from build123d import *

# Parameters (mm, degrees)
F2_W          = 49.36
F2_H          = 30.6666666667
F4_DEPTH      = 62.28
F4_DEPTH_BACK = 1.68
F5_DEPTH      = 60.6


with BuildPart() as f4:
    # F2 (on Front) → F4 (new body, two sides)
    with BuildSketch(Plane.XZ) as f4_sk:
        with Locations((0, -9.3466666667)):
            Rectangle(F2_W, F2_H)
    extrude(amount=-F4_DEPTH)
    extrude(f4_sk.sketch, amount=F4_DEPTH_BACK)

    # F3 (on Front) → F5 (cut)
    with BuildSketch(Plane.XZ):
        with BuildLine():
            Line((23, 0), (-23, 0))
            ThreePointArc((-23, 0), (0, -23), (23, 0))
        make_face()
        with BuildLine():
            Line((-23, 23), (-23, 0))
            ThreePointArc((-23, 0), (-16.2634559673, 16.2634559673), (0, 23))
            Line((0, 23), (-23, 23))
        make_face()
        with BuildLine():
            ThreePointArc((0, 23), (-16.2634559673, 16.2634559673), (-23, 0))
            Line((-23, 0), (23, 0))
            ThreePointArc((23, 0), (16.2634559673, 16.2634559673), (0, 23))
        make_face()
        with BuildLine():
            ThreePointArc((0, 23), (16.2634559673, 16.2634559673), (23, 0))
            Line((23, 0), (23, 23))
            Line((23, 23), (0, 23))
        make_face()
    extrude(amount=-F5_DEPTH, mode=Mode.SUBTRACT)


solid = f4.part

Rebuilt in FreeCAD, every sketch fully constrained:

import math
import FreeCAD as App
import Part
import Sketcher
Q = App.Units.Quantity

doc = App.newDocument("Part")
body = doc.addObject("PartDesign::Body", "Body")

# Sketch on XZ plane
sketch1 = doc.addObject("Sketcher::SketchObject", "Sketch")
body.addObject(sketch1)
sketch1.AttachmentSupport = (doc.XZ_Plane, [""])
sketch1.MapMode = "FlatFace"
sketch1.addGeometry([
    Part.LineSegment(App.Vector(-24.68, 5.986667, 0), App.Vector(-24.68, -24.68, 0)),
    Part.LineSegment(App.Vector(-24.68, -24.68, 0), App.Vector(24.68, -24.68, 0)),
    Part.LineSegment(App.Vector(24.68, -24.68, 0), App.Vector(24.68, 5.986667, 0)),
    Part.LineSegment(App.Vector(24.68, 5.986667, 0), App.Vector(-24.68, 5.986667, 0)),
], False)
sketch1.addConstraint([
    Sketcher.Constraint("Coincident", 0, 2, 1, 1),
    Sketcher.Constraint("Coincident", 1, 2, 2, 1),
    Sketcher.Constraint("Coincident", 2, 2, 3, 1),
    Sketcher.Constraint("Coincident", 3, 2, 0, 1),
    Sketcher.Constraint("Vertical", 0),
    Sketcher.Constraint("Horizontal", 1),
    Sketcher.Constraint("Vertical", 2),
    Sketcher.Constraint("Horizontal", 3),
    Sketcher.Constraint("DistanceX", 1, 1, 1, 2, Q("49.36 mm")),
    Sketcher.Constraint("DistanceX", 0, 2, -1, 1, Q("24.68 mm")),
    Sketcher.Constraint("DistanceY", 0, 2, -1, 1, Q("24.68 mm")),
    Sketcher.Constraint("DistanceY", 0, 2, 0, 1, Q("30.666667 mm")),
])
pad1 = doc.addObject("PartDesign::Pad", "Pad")
body.addObject(pad1)
pad1.Profile = sketch1
pad1.Type = "TwoLengths"
pad1.Length = 62.28
pad1.Length2 = 1.68
pad1.Reversed = True

# Sketch on XZ plane
sketch2 = doc.addObject("Sketcher::SketchObject", "Sketch001")
body.addObject(sketch2)
sketch2.AttachmentSupport = (doc.XZ_Plane, [""])
sketch2.MapMode = "FlatFace"
sketch2.addGeometry([
    Part.ArcOfCircle(Part.Circle(App.Vector(0, 0, 0), App.Vector(0, 0, 1), 23), math.radians(180), math.radians(360)),
    Part.LineSegment(App.Vector(23, 0, 0), App.Vector(23, 23, 0)),
    Part.LineSegment(App.Vector(23, 23, 0), App.Vector(-23, 23, 0)),
    Part.LineSegment(App.Vector(-23, 23, 0), App.Vector(-23, 0, 0)),
], False)
sketch2.addConstraint([
    Sketcher.Constraint("Tangent", 0, 2, 1, 1),
    Sketcher.Constraint("Coincident", 1, 2, 2, 1),
    Sketcher.Constraint("Coincident", 2, 2, 3, 1),
    Sketcher.Constraint("Tangent", 3, 2, 0, 1),
    Sketcher.Constraint("Vertical", 1),
    Sketcher.Constraint("Horizontal", 2),
    Sketcher.Constraint("Vertical", 3),
    Sketcher.Constraint("Coincident", 0, 3, -1, 1),
    Sketcher.Constraint("Radius", 0, Q("23 mm")),
    Sketcher.Constraint("DistanceY", 1, 1, 1, 2, Q("23 mm")),
])
pocket1 = doc.addObject("PartDesign::Pocket", "Pocket")
body.addObject(pocket1)
pocket1.Profile = sketch2
pocket1.Length = 60.6

doc.recompute()
